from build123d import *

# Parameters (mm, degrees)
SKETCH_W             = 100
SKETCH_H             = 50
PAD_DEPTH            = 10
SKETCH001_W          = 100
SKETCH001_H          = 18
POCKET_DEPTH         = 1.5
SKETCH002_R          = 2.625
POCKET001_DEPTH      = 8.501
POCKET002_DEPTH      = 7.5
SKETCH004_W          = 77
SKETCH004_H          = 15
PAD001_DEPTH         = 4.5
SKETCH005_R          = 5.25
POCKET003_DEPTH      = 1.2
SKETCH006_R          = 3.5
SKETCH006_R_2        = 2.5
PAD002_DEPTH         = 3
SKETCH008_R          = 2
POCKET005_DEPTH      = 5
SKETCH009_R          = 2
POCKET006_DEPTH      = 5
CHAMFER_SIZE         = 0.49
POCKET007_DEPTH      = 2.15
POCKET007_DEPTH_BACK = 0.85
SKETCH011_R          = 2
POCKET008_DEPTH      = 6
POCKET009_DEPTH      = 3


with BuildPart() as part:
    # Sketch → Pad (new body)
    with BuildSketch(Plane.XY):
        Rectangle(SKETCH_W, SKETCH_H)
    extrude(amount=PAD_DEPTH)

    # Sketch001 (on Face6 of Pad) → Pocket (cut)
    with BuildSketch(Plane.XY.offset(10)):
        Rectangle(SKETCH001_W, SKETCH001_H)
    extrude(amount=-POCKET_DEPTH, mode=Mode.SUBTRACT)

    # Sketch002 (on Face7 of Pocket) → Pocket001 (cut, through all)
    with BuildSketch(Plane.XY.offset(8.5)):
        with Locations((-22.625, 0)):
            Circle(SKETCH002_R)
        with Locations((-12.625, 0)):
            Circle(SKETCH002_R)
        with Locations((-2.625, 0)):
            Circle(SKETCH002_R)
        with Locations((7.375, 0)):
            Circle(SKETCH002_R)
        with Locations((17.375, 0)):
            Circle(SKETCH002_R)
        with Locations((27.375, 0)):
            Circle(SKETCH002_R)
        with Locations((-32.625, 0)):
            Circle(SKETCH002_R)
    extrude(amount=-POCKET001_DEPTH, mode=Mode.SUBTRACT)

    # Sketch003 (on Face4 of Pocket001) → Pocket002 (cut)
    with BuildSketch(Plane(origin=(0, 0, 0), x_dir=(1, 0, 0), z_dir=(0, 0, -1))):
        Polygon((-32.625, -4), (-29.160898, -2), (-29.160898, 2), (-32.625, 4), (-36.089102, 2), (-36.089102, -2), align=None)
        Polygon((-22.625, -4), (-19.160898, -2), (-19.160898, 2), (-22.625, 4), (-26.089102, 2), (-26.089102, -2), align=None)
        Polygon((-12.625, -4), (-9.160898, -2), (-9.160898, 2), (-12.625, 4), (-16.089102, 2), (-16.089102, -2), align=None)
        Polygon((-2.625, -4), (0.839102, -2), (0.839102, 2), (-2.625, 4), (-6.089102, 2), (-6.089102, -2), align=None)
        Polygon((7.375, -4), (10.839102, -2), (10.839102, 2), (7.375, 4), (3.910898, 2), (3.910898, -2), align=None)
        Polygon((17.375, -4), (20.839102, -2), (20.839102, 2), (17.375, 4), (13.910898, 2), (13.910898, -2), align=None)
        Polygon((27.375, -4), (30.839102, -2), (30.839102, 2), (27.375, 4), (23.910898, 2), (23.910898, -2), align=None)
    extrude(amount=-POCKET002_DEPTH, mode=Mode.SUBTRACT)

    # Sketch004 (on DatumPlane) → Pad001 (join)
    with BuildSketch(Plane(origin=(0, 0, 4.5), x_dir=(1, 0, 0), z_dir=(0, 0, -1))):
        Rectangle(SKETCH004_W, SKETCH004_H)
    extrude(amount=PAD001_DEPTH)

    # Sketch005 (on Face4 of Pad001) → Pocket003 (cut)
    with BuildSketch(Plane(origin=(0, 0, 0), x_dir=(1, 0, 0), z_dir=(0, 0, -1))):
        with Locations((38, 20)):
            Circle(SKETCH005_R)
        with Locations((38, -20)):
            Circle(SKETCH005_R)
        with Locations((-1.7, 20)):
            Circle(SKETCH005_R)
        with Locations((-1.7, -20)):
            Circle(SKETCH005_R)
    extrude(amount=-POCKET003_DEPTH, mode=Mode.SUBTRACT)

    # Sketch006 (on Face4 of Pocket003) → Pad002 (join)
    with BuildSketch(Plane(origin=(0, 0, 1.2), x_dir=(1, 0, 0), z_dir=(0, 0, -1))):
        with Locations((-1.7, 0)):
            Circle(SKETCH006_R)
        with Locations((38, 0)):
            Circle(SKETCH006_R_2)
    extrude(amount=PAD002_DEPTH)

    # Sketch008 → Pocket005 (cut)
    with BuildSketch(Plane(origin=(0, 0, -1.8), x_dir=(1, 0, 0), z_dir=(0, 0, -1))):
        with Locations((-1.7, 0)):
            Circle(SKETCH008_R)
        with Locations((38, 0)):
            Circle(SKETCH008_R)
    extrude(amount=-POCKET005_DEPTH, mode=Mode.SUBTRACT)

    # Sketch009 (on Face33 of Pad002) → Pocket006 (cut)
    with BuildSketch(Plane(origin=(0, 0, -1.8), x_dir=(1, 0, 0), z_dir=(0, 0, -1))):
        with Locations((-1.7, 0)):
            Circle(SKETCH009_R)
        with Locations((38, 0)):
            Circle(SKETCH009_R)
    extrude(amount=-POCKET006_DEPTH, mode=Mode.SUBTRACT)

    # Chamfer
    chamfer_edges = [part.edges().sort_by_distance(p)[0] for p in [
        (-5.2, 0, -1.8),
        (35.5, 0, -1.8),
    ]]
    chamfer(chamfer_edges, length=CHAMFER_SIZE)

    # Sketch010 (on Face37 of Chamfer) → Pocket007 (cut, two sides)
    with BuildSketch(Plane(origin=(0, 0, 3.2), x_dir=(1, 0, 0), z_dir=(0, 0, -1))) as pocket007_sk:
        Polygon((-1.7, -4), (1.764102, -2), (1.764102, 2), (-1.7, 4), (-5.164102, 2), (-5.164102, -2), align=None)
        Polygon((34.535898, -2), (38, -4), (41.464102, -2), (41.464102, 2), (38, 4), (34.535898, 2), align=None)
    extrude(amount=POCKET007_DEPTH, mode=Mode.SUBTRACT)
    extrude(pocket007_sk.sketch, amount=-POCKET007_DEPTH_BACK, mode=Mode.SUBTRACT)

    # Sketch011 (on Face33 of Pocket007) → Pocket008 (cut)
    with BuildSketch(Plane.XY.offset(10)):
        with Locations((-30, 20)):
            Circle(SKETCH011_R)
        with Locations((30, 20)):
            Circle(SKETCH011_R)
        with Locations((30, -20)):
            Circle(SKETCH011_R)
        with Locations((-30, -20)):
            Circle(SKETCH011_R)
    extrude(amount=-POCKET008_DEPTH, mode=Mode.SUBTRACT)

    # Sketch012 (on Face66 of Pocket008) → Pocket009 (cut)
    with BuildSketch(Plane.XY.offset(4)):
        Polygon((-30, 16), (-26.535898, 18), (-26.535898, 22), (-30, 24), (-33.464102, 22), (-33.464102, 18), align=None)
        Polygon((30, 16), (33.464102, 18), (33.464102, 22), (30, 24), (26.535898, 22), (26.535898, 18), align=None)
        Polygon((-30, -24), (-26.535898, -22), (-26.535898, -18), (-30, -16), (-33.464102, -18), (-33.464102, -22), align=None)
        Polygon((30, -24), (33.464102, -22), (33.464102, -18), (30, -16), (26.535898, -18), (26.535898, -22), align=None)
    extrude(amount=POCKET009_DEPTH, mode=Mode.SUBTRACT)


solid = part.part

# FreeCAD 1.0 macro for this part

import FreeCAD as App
import Part
import Sketcher
from FreeCAD import Vector
Q = App.Units.Quantity


def edges_at(feature, points):
    """Names of the edges that pass closest to the given points."""
    edges = feature.Shape.Edges
    near = lambda p: min(range(len(edges)), key=lambda i: edges[i].distToShape(Part.Vertex(*p))[0])
    return sorted({f"Edge{near(p) + 1}" for p in points})


def add_polygon(sketch, points):
    """Adds a closed chain of lines whose ends are joined by coincident constraints."""
    first, n = sketch.GeometryCount, len(points)
    for a, b in zip(points, points[1:] + points[:1]):
        sketch.addGeometry(Part.LineSegment(App.Vector(*a, 0), App.Vector(*b, 0)), False)
    for i in range(n):
        sketch.addConstraint(Sketcher.Constraint("Coincident", first + i, 2, first + (i + 1) % n, 1))

doc = App.newDocument("Part")
body = doc.addObject("PartDesign::Body", "Body")

sketch1 = body.newObject("Sketcher::SketchObject", "Sketch")
sketch1.AttachmentSupport = (doc.getObject("XY_Plane"), [""])
sketch1.MapMode = "FlatFace"
add_polygon(sketch1, [(-50, 25), (-50, -25), (50, -25), (50, 25)])
sketch1.addConstraint([
    Sketcher.Constraint("Vertical", 0),
    Sketcher.Constraint("Horizontal", 1),
    Sketcher.Constraint("Vertical", 2),
    Sketcher.Constraint("Horizontal", 3),
    Sketcher.Constraint("Symmetric", 0, 2, 2, 2, -1, 1),
    Sketcher.Constraint("DistanceX", 1, 1, 1, 2, 100.0),
    Sketcher.Constraint("DistanceY", 0, 2, 0, 1, 50.0),
])
pad1 = body.newObject("PartDesign::Pad", "Pad")
pad1.Profile = sketch1
pad1.Length = 10

sketch2 = body.newObject("Sketcher::SketchObject", "Sketch001")
sketch2.AttachmentSupport = (doc.getObject("XY_Plane"), [""])
sketch2.MapMode = "FlatFace"
sketch2.AttachmentOffset = App.Placement(Vector(0, 0, 10), App.Rotation())
add_polygon(sketch2, [(-50, 9), (-50, -9), (50, -9), (50, 9)])
sketch2.addConstraint([
    Sketcher.Constraint("Vertical", 0),
    Sketcher.Constraint("Horizontal", 1),
    Sketcher.Constraint("Vertical", 2),
    Sketcher.Constraint("Horizontal", 3),
    Sketcher.Constraint("Symmetric", 0, 2, 2, 2, -1, 1),
    Sketcher.Constraint("DistanceX", 1, 1, 1, 2, 100.0),
    Sketcher.Constraint("DistanceY", 0, 2, 0, 1, 18.0),
])
pocket1 = body.newObject("PartDesign::Pocket", "Pocket")
pocket1.Profile = sketch2
pocket1.Length = 1.5

sketch3 = body.newObject("Sketcher::SketchObject", "Sketch002")
sketch3.AttachmentSupport = (doc.getObject("XY_Plane"), [""])
sketch3.MapMode = "FlatFace"
sketch3.AttachmentOffset = App.Placement(Vector(0, 0, 8.5), App.Rotation())
sketch3.addGeometry([
    Part.Circle(Vector(-22.625, 0, 0), Vector(0, 0, 1), 2.625),
    Part.Circle(Vector(-12.625, 0, 0), Vector(0, 0, 1), 2.625),
    Part.Circle(Vector(-2.625, 0, 0), Vector(0, 0, 1), 2.625),
    Part.Circle(Vector(7.375, 0, 0), Vector(0, 0, 1), 2.625),
    Part.Circle(Vector(17.375, 0, 0), Vector(0, 0, 1), 2.625),
    Part.Circle(Vector(27.375, 0, 0), Vector(0, 0, 1), 2.625),
    Part.Circle(Vector(-32.625, 0, 0), Vector(0, 0, 1), 2.625),
], False)
sketch3.addConstraint([
    Sketcher.Constraint("Equal", 0, 1),
    Sketcher.Constraint("Equal", 1, 2),
    Sketcher.Constraint("Equal", 2, 3),
    Sketcher.Constraint("Equal", 3, 4),
    Sketcher.Constraint("Equal", 4, 5),
    Sketcher.Constraint("Equal", 5, 6),
    Sketcher.Constraint("PointOnObject", 0, 3, -1),
    Sketcher.Constraint("PointOnObject", 1, 3, -1),
    Sketcher.Constraint("PointOnObject", 2, 3, -1),
    Sketcher.Constraint("PointOnObject", 3, 3, -1),
    Sketcher.Constraint("PointOnObject", 4, 3, -1),
    Sketcher.Constraint("PointOnObject", 5, 3, -1),
    Sketcher.Constraint("PointOnObject", 6, 3, -1),
    Sketcher.Constraint("Diameter", 0, 5.25),
    Sketcher.Constraint("DistanceX", 0, 3, 1, 3, 10.0),
    Sketcher.Constraint("DistanceX", 1, 3, 2, 3, 10.0),
    Sketcher.Constraint("DistanceX", 2, 3, 3, 3, 10.0),
    Sketcher.Constraint("DistanceX", 3, 3, 4, 3, 10.0),
    Sketcher.Constraint("DistanceX", 4, 3, 5, 3, 10.0),
    Sketcher.Constraint("DistanceX", 6, 3, 0, 3, 10.0),
    Sketcher.Constraint("DistanceX", 0, 3, -1, 1, 22.625),
])
pocket2 = body.newObject("PartDesign::Pocket", "Pocket001")
pocket2.Profile = sketch3
pocket2.Type = "ThroughAll"

sketch4 = body.newObject("Sketcher::SketchObject", "Sketch003")
sketch4.AttachmentSupport = (doc.getObject("XY_Plane"), [""])
sketch4.MapMode = "FlatFace"
add_polygon(sketch4, [(-32.625, 4), (-29.160898, 2), (-29.160898, -2), (-32.625, -4), (-36.089102, -2), (-36.089102, 2)])
add_polygon(sketch4, [(-22.625, 4), (-19.160898, 2), (-19.160898, -2), (-22.625, -4), (-26.089102, -2), (-26.089102, 2)])
add_polygon(sketch4, [(-12.625, 4), (-9.160898, 2), (-9.160898, -2), (-12.625, -4), (-16.089102, -2), (-16.089102, 2)])
add_polygon(sketch4, [(-2.625, 4), (0.839102, 2), (0.839102, -2), (-2.625, -4), (-6.089102, -2), (-6.089102, 2)])
add_polygon(sketch4, [(7.375, 4), (10.839102, 2), (10.839102, -2), (7.375, -4), (3.910898, -2), (3.910898, 2)])
add_polygon(sketch4, [(17.375, 4), (20.839102, 2), (20.839102, -2), (17.375, -4), (13.910898, -2), (13.910898, 2)])
add_polygon(sketch4, [(27.375, 4), (30.839102, 2), (30.839102, -2), (27.375, -4), (23.910898, -2), (23.910898, 2)])
sketch4.addConstraint([
    Sketcher.Constraint("Vertical", 1),
    Sketcher.Constraint("Vertical", 4),
    Sketcher.Constraint("Vertical", 7),
    Sketcher.Constraint("Vertical", 10),
    Sketcher.Constraint("Vertical", 13),
    Sketcher.Constraint("Vertical", 16),
    Sketcher.Constraint("Vertical", 19),
    Sketcher.Constraint("Vertical", 22),
    Sketcher.Constraint("Vertical", 25),
    Sketcher.Constraint("Vertical", 28),
    Sketcher.Constraint("Vertical", 31),
    Sketcher.Constraint("Vertical", 34),
    Sketcher.Constraint("Vertical", 37),
    Sketcher.Constraint("Vertical", 40),
    Sketcher.Constraint("Symmetric", 2, 2, 5, 2, -1),
    Sketcher.Constraint("Symmetric", 8, 2, 11, 2, -1),
    Sketcher.Constraint("Symmetric", 14, 2, 17, 2, -1),
    Sketcher.Constraint("Symmetric", 20, 2, 23, 2, -1),
    Sketcher.Constraint("Symmetric", 26, 2, 29, 2, -1),
    Sketcher.Constraint("Symmetric", 32, 2, 35, 2, -1),
    Sketcher.Constraint("Symmetric", 38, 2, 41, 2, -1),
    Sketcher.Constraint("Parallel", 0, 3),
    Sketcher.Constraint("Parallel", 2, 5),
    Sketcher.Constraint("Parallel", 3, 6),
    Sketcher.Constraint("Parallel", 5, 8),
    Sketcher.Constraint("Parallel", 6, 9),
    Sketcher.Constraint("Parallel", 8, 11),
    Sketcher.Constraint("Parallel", 9, 12),
    Sketcher.Constraint("Parallel", 11, 14),
    Sketcher.Constraint("Parallel", 12, 15),
    Sketcher.Constraint("Parallel", 14, 17),
    Sketcher.Constraint("Parallel", 15, 18),
    Sketcher.Constraint("Parallel", 17, 20),
    Sketcher.Constraint("Parallel", 18, 21),
    Sketcher.Constraint("Parallel", 20, 23),
    Sketcher.Constraint("Parallel", 21, 24),
    Sketcher.Constraint("Parallel", 23, 26),
    Sketcher.Constraint("Parallel", 24, 27),
    Sketcher.Constraint("Parallel", 26, 29),
    Sketcher.Constraint("Parallel", 27, 30),
    Sketcher.Constraint("Parallel", 29, 32),
    Sketcher.Constraint("Parallel", 30, 33),
    Sketcher.Constraint("Parallel", 32, 35),
    Sketcher.Constraint("Parallel", 33, 36),
    Sketcher.Constraint("Parallel", 35, 38),
    Sketcher.Constraint("Parallel", 36, 39),
    Sketcher.Constraint("Parallel", 38, 41),
    Sketcher.Constraint("Horizontal", 1, 2, 3, 2),
    Sketcher.Constraint("Horizontal", 0, 2, 4, 2),
    Sketcher.Constraint("Horizontal", 4, 2, 6, 2),
    Sketcher.Constraint("Horizontal", 2, 2, 8, 2),
    Sketcher.Constraint("Horizontal", 7, 2, 9, 2),
    Sketcher.Constraint("Horizontal", 10, 2, 12, 2),
    Sketcher.Constraint("Horizontal", 8, 2, 14, 2),
    Sketcher.Constraint("Horizontal", 13, 2, 15, 2),
    Sketcher.Constraint("Horizontal", 16, 2, 18, 2),
    Sketcher.Constraint("Horizontal", 14, 2, 20, 2),
    Sketcher.Constraint("Horizontal", 19, 2, 21, 2),
    Sketcher.Constraint("Horizontal", 22, 2, 24, 2),
    Sketcher.Constraint("Horizontal", 20, 2, 26, 2),
    Sketcher.Constraint("Horizontal", 25, 2, 27, 2),
    Sketcher.Constraint("Horizontal", 28, 2, 30, 2),
    Sketcher.Constraint("Horizontal", 26, 2, 32, 2),
    Sketcher.Constraint("Horizontal", 31, 2, 33, 2),
    Sketcher.Constraint("Horizontal", 34, 2, 36, 2),
    Sketcher.Constraint("Horizontal", 32, 2, 38, 2),
    Sketcher.Constraint("Horizontal", 37, 2, 39, 2),
    Sketcher.Constraint("DistanceY", 1, 2, 1, 1, 4.0),
    Sketcher.Constraint("Angle", 0, Q("-29.999997 deg")),
    Sketcher.Constraint("Distance", 0, 4.0),
    Sketcher.Constraint("DistanceX", 0, 2, 6, 2, 10.0),
    Sketcher.Constraint("DistanceX", 6, 2, 12, 2, 10.0),
    Sketcher.Constraint("DistanceX", 12, 2, 18, 2, 10.0),
    Sketcher.Constraint("DistanceX", 18, 2, 24, 2, 10.0),
    Sketcher.Constraint("DistanceX", 24, 2, 30, 2, 10.0),
    Sketcher.Constraint("DistanceX", 30, 2, 36, 2, 10.0),
    Sketcher.Constraint("DistanceX", 2, 2, -1, 1, 32.625),
])
pocket3 = body.newObject("PartDesign::Pocket", "Pocket002")
pocket3.Profile = sketch4
pocket3.Length = 7.5
pocket3.Reversed = True

sketch5 = body.newObject("Sketcher::SketchObject", "Sketch004")
sketch5.AttachmentSupport = (doc.getObject("XY_Plane"), [""])
sketch5.MapMode = "FlatFace"
sketch5.AttachmentOffset = App.Placement(Vector(0, 0, 4.5), App.Rotation())
add_polygon(sketch5, [(-38.5, -7.5), (-38.5, 7.5), (38.5, 7.5), (38.5, -7.5)])
sketch5.addConstraint([
    Sketcher.Constraint("Vertical", 0),
    Sketcher.Constraint("Horizontal", 1),
    Sketcher.Constraint("Vertical", 2),
    Sketcher.Constraint("Horizontal", 3),
    Sketcher.Constraint("Symmetric", 0, 2, 2, 2, -1, 1),
    Sketcher.Constraint("DistanceX", 1, 1, 1, 2, 77.0),
    Sketcher.Constraint("DistanceY", 0, 1, 0, 2, 15.0),
])
pad2 = body.newObject("PartDesign::Pad", "Pad001")
pad2.Profile = sketch5
pad2.Length = 4.5
pad2.Reversed = True

sketch6 = body.newObject("Sketcher::SketchObject", "Sketch005")
sketch6.AttachmentSupport = (doc.getObject("XY_Plane"), [""])
sketch6.MapMode = "FlatFace"
sketch6.addGeometry([
    Part.Circle(Vector(38, -20, 0), Vector(0, 0, 1), 5.25),
    Part.Circle(Vector(38, 20, 0), Vector(0, 0, 1), 5.25),
    Part.Circle(Vector(-1.7, -20, 0), Vector(0, 0, 1), 5.25),
    Part.Circle(Vector(-1.7, 20, 0), Vector(0, 0, 1), 5.25),
], False)
sketch6.addConstraint([
    Sketcher.Constraint("Equal", 0, 1),
    Sketcher.Constraint("Equal", 1, 2),
    Sketcher.Constraint("Equal", 2, 3),
    Sketcher.Constraint("Symmetric", 0, 3, 1, 3, -1),
    Sketcher.Constraint("Symmetric", 2, 3, 3, 3, -1),
    Sketcher.Constraint("Horizontal", 0, 3, 2, 3),
    Sketcher.Constraint("Diameter", 0, 10.5),
    Sketcher.Constraint("DistanceX", -1, 1, 0, 3, 38.0),
    Sketcher.Constraint("DistanceY", 0, 3, -1, 1, 20.0),
    Sketcher.Constraint("DistanceX", 2, 3, -1, 1, 1.7),
])
pocket4 = body.newObject("PartDesign::Pocket", "Pocket003")
pocket4.Profile = sketch6
pocket4.Length = 1.2
pocket4.Reversed = True

sketch7 = body.newObject("Sketcher::SketchObject", "Sketch006")
sketch7.AttachmentSupport = (doc.getObject("XY_Plane"), [""])
sketch7.MapMode = "FlatFace"
sketch7.AttachmentOffset = App.Placement(Vector(0, 0, 1.2), App.Rotation())
sketch7.addGeometry([
    Part.Circle(Vector(-1.7, 0, 0), Vector(0, 0, 1), 3.5),
    Part.Circle(Vector(38, 0, 0), Vector(0, 0, 1), 2.5),
], False)
sketch7.addConstraint([
    Sketcher.Constraint("PointOnObject", 0, 3, -1),
    Sketcher.Constraint("PointOnObject", 1, 3, -1),
    Sketcher.Constraint("Diameter", 0, 7.0),
    Sketcher.Constraint("Diameter", 1, 5.0),
    Sketcher.Constraint("DistanceX", -1, 1, 1, 3, 38.0),
    Sketcher.Constraint("DistanceX", 0, 3, -1, 1, 1.7),
])
pad3 = body.newObject("PartDesign::Pad", "Pad002")
pad3.Profile = sketch7
pad3.Length = 3
pad3.Reversed = True

sketch8 = body.newObject("Sketcher::SketchObject", "Sketch007")
sketch8.AttachmentSupport = (doc.getObject("XY_Plane"), [""])
sketch8.MapMode = "FlatFace"
sketch8.AttachmentOffset = App.Placement(Vector(0, 0, -1.8), App.Rotation())
sketch8.addGeometry([
    Part.Circle(Vector(-1.7, 0, 0), Vector(0, 0, 1), 2),
    Part.Circle(Vector(38, 0, 0), Vector(0, 0, 1), 2),
], False)
sketch8.addConstraint([
    Sketcher.Constraint("Equal", 0, 1),
    Sketcher.Constraint("PointOnObject", 0, 3, -1),
    Sketcher.Constraint("PointOnObject", 1, 3, -1),
    Sketcher.Constraint("Diameter", 0, 4.0),
    Sketcher.Constraint("DistanceX", -1, 1, 1, 3, 38.0),
    Sketcher.Constraint("DistanceX", 0, 3, -1, 1, 1.7),
])
pocket5 = body.newObject("PartDesign::Pocket", "Pocket004")
pocket5.Profile = sketch8
pocket5.Length = 5
pocket5.Reversed = True

sketch9 = body.newObject("Sketcher::SketchObject", "Sketch008")
sketch9.AttachmentSupport = (doc.getObject("XY_Plane"), [""])
sketch9.MapMode = "FlatFace"
sketch9.AttachmentOffset = App.Placement(Vector(0, 0, -1.8), App.Rotation())
sketch9.addGeometry([
    Part.Circle(Vector(-1.7, 0, 0), Vector(0, 0, 1), 2),
    Part.Circle(Vector(38, 0, 0), Vector(0, 0, 1), 2),
], False)
sketch9.addConstraint([
    Sketcher.Constraint("Equal", 0, 1),
    Sketcher.Constraint("PointOnObject", 0, 3, -1),
    Sketcher.Constraint("PointOnObject", 1, 3, -1),
    Sketcher.Constraint("Diameter", 0, 4.0),
    Sketcher.Constraint("DistanceX", -1, 1, 1, 3, 38.0),
    Sketcher.Constraint("DistanceX", 0, 3, -1, 1, 1.7),
])
pocket6 = body.newObject("PartDesign::Pocket", "Pocket005")
pocket6.Profile = sketch9
pocket6.Length = 5
pocket6.Reversed = True
doc.recompute()

chamfer = body.newObject("PartDesign::Chamfer", "Chamfer")
chamfer.Base = (pocket6, edges_at(pocket6, [(-5.2, 0, -1.8), (35.5, 0, -1.8)]))
chamfer.Size = 0.49

sketch10 = body.newObject("Sketcher::SketchObject", "Sketch009")
sketch10.AttachmentSupport = (doc.getObject("XY_Plane"), [""])
sketch10.MapMode = "FlatFace"
sketch10.AttachmentOffset = App.Placement(Vector(0, 0, 3.2), App.Rotation())
add_polygon(sketch10, [(-1.7, 4), (1.764102, 2), (1.764102, -2), (-1.7, -4), (-5.164102, -2), (-5.164102, 2)])
add_polygon(sketch10, [(34.535898, 2), (38, 4), (41.464102, 2), (41.464102, -2), (38, -4), (34.535898, -2)])
sketch10.addConstraint([
    Sketcher.Constraint("Vertical", 1),
    Sketcher.Constraint("Vertical", 4),
    Sketcher.Constraint("Vertical", 8),
    Sketcher.Constraint("Vertical", 11),
    Sketcher.Constraint("Symmetric", 2, 2, 5, 2, -1),
    Sketcher.Constraint("Symmetric", 6, 2, 9, 2, -1),
    Sketcher.Constraint("Parallel", 0, 3),
    Sketcher.Constraint("Parallel", 2, 5),
    Sketcher.Constraint("Parallel", 5, 6),
    Sketcher.Constraint("Parallel", 3, 7),
    Sketcher.Constraint("Parallel", 6, 9),
    Sketcher.Constraint("Parallel", 7, 10),
    Sketcher.Constraint("Horizontal", 1, 2, 3, 2),
    Sketcher.Constraint("Horizontal", 0, 2, 4, 2),
    Sketcher.Constraint("Horizontal", 5, 2, 6, 2),
    Sketcher.Constraint("Horizontal", 4, 2, 7, 2),
    Sketcher.Constraint("Horizontal", 8, 2, 10, 2),
    Sketcher.Constraint("DistanceY", 1, 2, 1, 1, 4.0),
    Sketcher.Constraint("Angle", 0, Q("-29.999997 deg")),
    Sketcher.Constraint("Distance", 0, 4.0),
    Sketcher.Constraint("DistanceX", -1, 1, 6, 2, 38.0),
    Sketcher.Constraint("DistanceX", 2, 2, -1, 1, 1.7),
])
pocket7 = body.newObject("PartDesign::Pocket", "Pocket006")
pocket7.Profile = sketch10
pocket7.Type = "TwoLengths"
pocket7.Length = 2.15
pocket7.Length2 = 0.85

sketch11 = body.newObject("Sketcher::SketchObject", "Sketch010")
sketch11.AttachmentSupport = (doc.getObject("XY_Plane"), [""])
sketch11.MapMode = "FlatFace"
sketch11.AttachmentOffset = App.Placement(Vector(0, 0, 10), App.Rotation())
sketch11.addGeometry([
    Part.Circle(Vector(-30, 20, 0), Vector(0, 0, 1), 2),
    Part.Circle(Vector(30, 20, 0), Vector(0, 0, 1), 2),
    Part.Circle(Vector(30, -20, 0), Vector(0, 0, 1), 2),
    Part.Circle(Vector(-30, -20, 0), Vector(0, 0, 1), 2),
], False)
sketch11.addConstraint([
    Sketcher.Constraint("Equal", 0, 1),
    Sketcher.Constraint("Equal", 1, 2),
    Sketcher.Constraint("Equal", 2, 3),
    Sketcher.Constraint("Symmetric", 0, 3, 2, 3, -1, 1),
    Sketcher.Constraint("Symmetric", 1, 3, 3, 3, -1, 1),
    Sketcher.Constraint("Symmetric", 0, 3, 1, 3, -2),
    Sketcher.Constraint("Diameter", 0, 4.0),
    Sketcher.Constraint("DistanceX", 0, 3, -1, 1, 30.0),
    Sketcher.Constraint("DistanceY", -1, 1, 0, 3, 20.0),
])
pocket8 = body.newObject("PartDesign::Pocket", "Pocket007")
pocket8.Profile = sketch11
pocket8.Length = 6

sketch12 = body.newObject("Sketcher::SketchObject", "Sketch011")
sketch12.AttachmentSupport = (doc.getObject("XY_Plane"), [""])
sketch12.MapMode = "FlatFace"
sketch12.AttachmentOffset = App.Placement(Vector(0, 0, 4), App.Rotation())
add_polygon(sketch12, [(-30, 16), (-26.535898, 18), (-26.535898, 22), (-30, 24), (-33.464102, 22), (-33.464102, 18)])
add_polygon(sketch12, [(30, 16), (33.464102, 18), (33.464102, 22), (30, 24), (26.535898, 22), (26.535898, 18)])
add_polygon(sketch12, [(-30, -24), (-26.535898, -22), (-26.535898, -18), (-30, -16), (-33.464102, -18), (-33.464102, -22)])
add_polygon(sketch12, [(30, -24), (33.464102, -22), (33.464102, -18), (30, -16), (26.535898, -18), (26.535898, -22)])
sketch12.addConstraint([
    Sketcher.Constraint("Vertical", 1),
    Sketcher.Constraint("Vertical", 4),
    Sketcher.Constraint("Vertical", 7),
    Sketcher.Constraint("Vertical", 10),
    Sketcher.Constraint("Vertical", 13),
    Sketcher.Constraint("Vertical", 16),
    Sketcher.Constraint("Vertical", 19),
    Sketcher.Constraint("Vertical", 22),
    Sketcher.Constraint("Symmetric", 9, 2, 12, 2, -1, 1),
    Sketcher.Constraint("Symmetric", 11, 2, 14, 2, -1, 1),
    Sketcher.Constraint("Symmetric", 6, 2, 15, 2, -1, 1),
    Sketcher.Constraint("Symmetric", 8, 2, 17, 2, -1, 1),
    Sketcher.Constraint("Symmetric", 3, 2, 18, 2, -1, 1),
    Sketcher.Constraint("Symmetric", 5, 2, 20, 2, -1, 1),
    Sketcher.Constraint("Symmetric", 0, 2, 21, 2, -1, 1),
    Sketcher.Constraint("Symmetric", 2, 2, 23, 2, -1, 1),
    Sketcher.Constraint("Symmetric", 4, 2, 6, 2, -2),
    Sketcher.Constraint("Symmetric", 2, 2, 8, 2, -2),
    Sketcher.Constraint("Symmetric", 1, 2, 9, 2, -2),
    Sketcher.Constraint("Symmetric", 5, 2, 11, 2, -2),
    Sketcher.Constraint("Parallel", 0, 3),
    Sketcher.Constraint("Parallel", 2, 5),
    Sketcher.Constraint("Parallel", 3, 6),
    Sketcher.Constraint("Parallel", 5, 8),
    Sketcher.Constraint("Parallel", 8, 11),
    Sketcher.Constraint("Parallel", 11, 14),
    Sketcher.Constraint("Parallel", 14, 17),
    Sketcher.Constraint("Parallel", 17, 20),
    Sketcher.Constraint("Parallel", 20, 23),
    Sketcher.Constraint("Horizontal", 1, 2, 3, 2),
    Sketcher.Constraint("Horizontal", 0, 2, 4, 2),
    Sketcher.Constraint("DistanceY", 1, 1, 1, 2, 4.0),
    Sketcher.Constraint("Angle", 0, Q("29.999997 deg")),
    Sketcher.Constraint("Distance", 0, 4.0),
    Sketcher.Constraint("DistanceY", -1, 1, 0, 2, 18.0),
    Sketcher.Constraint("DistanceX", 2, 2, -1, 1, 30.0),
])
pocket9 = body.newObject("PartDesign::Pocket", "Pocket008")
pocket9.Profile = sketch12
pocket9.Length = 3
pocket9.Reversed = True

doc.recompute()
